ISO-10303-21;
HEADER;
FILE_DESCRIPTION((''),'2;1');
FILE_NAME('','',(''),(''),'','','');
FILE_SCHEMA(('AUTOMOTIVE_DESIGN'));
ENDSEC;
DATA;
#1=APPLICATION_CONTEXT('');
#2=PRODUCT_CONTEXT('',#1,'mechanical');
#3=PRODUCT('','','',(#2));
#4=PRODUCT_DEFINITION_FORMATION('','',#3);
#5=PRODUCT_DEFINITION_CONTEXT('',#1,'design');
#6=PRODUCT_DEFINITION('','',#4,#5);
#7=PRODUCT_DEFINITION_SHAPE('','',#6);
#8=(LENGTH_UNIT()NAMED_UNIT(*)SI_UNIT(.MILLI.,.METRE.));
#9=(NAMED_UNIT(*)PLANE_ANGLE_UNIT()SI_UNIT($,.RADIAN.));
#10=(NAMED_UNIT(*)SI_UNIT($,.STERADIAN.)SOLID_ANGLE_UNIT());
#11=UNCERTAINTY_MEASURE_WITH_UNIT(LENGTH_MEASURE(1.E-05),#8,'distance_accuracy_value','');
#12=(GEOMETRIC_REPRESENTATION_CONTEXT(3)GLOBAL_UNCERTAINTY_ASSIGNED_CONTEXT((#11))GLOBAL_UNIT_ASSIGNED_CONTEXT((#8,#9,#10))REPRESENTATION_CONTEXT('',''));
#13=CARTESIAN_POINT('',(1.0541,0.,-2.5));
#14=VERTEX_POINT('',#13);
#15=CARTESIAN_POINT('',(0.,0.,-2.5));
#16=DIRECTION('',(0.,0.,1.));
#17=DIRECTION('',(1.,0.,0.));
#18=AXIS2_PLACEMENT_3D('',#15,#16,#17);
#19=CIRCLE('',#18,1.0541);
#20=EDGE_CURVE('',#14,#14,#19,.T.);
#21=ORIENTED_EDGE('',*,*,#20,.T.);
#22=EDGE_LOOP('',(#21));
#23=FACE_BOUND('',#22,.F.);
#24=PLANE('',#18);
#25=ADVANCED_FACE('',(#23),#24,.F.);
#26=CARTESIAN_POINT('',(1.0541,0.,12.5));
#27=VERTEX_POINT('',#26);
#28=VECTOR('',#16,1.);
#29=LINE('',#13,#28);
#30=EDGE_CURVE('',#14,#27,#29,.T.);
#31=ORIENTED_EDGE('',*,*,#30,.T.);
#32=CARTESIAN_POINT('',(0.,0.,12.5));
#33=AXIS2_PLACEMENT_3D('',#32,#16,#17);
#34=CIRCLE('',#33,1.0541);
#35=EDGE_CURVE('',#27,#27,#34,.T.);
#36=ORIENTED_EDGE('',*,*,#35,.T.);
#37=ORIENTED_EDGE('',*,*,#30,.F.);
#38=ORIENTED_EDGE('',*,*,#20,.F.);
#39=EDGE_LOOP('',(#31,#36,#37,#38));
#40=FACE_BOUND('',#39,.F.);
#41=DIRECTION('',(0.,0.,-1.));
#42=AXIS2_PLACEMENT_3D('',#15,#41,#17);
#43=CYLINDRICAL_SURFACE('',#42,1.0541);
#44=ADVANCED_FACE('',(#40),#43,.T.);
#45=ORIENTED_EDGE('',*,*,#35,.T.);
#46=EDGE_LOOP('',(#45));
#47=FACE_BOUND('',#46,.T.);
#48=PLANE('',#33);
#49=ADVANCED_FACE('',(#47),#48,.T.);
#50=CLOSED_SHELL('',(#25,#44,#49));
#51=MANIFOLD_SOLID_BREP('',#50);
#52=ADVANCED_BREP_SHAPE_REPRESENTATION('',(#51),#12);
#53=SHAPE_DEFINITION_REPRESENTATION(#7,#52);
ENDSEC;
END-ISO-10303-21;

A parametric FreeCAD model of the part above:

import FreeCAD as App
import Part
import Sketcher
Q = App.Units.Quantity

doc = App.newDocument("Part")
body = doc.addObject("PartDesign::Body", "Body")

# Sketch on XY plane
sketch1 = body.newObject("Sketcher::SketchObject", "Sketch")
sketch1.AttachmentSupport = (doc.getObject("XY_Plane"), [""])
sketch1.MapMode = "FlatFace"
sketch1.AttachmentOffset = App.Placement(App.Vector(0, 0, -2.5), App.Rotation())
sketch1.addGeometry(Part.Circle(App.Vector(0, 0, 0), App.Vector(0, 0, 1), 1.1), False)
sketch1.addConstraint([
    Sketcher.Constraint("Coincident", 0, 3, -1, 1),
    Sketcher.Constraint("Diameter", 0, Q("2.1082 mm")),
])
pad1 = body.newObject("PartDesign::Pad", "Pad")
pad1.Profile = sketch1
pad1.Length = 15

doc.recompute()
